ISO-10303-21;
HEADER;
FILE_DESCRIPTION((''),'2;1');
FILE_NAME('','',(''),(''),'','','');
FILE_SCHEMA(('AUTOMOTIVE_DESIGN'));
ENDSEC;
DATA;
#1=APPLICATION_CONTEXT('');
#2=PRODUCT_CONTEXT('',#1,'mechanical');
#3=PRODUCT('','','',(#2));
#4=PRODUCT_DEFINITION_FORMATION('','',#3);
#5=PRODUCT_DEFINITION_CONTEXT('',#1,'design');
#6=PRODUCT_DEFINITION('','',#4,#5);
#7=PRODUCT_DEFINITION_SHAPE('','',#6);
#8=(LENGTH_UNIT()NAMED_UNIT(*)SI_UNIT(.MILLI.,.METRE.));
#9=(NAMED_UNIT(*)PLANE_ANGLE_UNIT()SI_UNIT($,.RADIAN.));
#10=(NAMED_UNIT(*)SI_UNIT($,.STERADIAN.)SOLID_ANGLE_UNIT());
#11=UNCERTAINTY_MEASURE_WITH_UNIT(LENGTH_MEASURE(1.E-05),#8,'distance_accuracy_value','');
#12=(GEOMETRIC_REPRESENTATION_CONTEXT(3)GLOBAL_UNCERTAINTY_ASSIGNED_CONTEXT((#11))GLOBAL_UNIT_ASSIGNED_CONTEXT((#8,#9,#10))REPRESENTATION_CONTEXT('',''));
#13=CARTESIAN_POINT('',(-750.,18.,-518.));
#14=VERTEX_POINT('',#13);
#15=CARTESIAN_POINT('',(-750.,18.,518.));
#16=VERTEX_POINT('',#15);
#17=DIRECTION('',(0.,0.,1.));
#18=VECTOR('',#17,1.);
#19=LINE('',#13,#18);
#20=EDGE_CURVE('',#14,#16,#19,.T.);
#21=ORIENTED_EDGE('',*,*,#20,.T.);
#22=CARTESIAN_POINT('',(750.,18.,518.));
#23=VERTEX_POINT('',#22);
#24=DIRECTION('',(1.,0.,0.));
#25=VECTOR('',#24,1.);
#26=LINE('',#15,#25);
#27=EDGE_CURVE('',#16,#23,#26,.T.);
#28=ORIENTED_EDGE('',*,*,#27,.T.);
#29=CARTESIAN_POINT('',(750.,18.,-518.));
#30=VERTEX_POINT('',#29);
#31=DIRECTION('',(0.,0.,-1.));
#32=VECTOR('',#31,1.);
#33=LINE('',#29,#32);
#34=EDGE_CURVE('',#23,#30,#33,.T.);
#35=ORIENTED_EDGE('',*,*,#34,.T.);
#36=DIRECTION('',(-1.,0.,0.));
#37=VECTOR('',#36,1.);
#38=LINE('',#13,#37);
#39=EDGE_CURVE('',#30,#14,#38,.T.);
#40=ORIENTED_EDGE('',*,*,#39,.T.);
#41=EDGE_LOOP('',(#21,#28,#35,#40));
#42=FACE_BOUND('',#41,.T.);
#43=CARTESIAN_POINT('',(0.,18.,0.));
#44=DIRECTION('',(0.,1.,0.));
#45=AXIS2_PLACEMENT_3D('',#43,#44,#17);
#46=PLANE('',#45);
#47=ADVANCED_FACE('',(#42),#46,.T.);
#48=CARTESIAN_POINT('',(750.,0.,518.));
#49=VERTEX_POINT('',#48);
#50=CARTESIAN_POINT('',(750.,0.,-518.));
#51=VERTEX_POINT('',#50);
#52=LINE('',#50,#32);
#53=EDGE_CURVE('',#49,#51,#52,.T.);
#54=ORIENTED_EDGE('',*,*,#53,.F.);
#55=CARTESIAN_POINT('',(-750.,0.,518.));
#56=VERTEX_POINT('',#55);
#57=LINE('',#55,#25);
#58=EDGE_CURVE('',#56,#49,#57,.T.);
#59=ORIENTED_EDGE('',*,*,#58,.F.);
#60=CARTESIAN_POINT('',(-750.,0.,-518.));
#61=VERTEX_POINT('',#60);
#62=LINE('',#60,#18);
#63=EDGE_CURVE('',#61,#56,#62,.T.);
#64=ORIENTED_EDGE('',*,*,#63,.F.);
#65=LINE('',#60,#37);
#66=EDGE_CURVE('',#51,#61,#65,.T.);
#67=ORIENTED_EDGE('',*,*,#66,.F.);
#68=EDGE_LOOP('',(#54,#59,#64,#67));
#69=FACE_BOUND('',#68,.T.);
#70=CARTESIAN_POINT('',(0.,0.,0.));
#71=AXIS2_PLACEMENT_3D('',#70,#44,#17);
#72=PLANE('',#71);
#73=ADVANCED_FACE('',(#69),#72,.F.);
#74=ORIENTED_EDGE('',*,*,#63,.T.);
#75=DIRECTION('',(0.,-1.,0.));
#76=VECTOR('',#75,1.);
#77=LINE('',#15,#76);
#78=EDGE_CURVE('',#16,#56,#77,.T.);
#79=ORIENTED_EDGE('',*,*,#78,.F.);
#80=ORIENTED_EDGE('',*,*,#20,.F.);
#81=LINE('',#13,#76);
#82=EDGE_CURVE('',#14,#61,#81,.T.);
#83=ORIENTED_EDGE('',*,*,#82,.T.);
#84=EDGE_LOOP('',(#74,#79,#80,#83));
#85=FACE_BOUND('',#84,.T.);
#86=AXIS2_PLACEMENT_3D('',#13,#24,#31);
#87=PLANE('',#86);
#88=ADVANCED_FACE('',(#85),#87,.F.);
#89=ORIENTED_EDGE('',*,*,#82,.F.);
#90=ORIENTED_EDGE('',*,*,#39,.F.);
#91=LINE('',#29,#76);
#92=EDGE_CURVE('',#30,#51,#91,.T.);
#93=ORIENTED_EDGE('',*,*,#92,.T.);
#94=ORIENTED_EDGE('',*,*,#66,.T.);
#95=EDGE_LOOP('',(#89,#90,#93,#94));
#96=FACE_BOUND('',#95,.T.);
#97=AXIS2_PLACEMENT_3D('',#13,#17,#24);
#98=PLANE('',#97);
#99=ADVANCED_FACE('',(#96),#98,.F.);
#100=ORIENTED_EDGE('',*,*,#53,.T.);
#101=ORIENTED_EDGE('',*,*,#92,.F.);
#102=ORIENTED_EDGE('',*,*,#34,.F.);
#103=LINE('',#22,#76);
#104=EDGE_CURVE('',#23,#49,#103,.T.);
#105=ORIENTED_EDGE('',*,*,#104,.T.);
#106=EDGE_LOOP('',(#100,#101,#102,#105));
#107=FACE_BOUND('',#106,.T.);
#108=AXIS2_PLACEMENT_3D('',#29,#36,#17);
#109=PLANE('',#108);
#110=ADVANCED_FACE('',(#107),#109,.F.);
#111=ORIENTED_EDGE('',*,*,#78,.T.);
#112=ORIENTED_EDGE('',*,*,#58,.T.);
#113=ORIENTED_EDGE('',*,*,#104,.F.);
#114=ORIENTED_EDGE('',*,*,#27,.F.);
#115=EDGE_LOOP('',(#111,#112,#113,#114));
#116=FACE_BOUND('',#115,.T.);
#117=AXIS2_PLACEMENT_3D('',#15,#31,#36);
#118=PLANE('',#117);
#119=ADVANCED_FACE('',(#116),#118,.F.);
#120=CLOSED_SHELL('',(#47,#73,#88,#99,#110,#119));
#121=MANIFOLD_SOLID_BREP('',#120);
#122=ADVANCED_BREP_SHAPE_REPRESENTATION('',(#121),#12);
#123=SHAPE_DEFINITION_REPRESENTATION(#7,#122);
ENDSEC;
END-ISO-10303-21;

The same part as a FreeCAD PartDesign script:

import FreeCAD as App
import Part
import Sketcher
from FreeCAD import Vector
Q = App.Units.Quantity

doc = App.newDocument("Part")
body = doc.addObject("PartDesign::Body", "Body")

sketch1 = body.newObject("Sketcher::SketchObject", "Sketch")
sketch1.AttachmentSupport = (doc.getObject("XZ_Plane"), [""])
sketch1.MapMode = "FlatFace"
sketch1.addGeometry([
    Part.LineSegment(Vector(-750, -518, 0), Vector(-750, 518, 0)),
    Part.LineSegment(Vector(-750, 518, 0), Vector(750, 518, 0)),
    Part.LineSegment(Vector(750, 518, 0), Vector(750, -518, 0)),
    Part.LineSegment(Vector(750, -518, 0), Vector(-750, -518, 0)),
], False)
sketch1.addConstraint([
    Sketcher.Constraint("Coincident", 0, 2, 1, 1),
    Sketcher.Constraint("Coincident", 1, 2, 2, 1),
    Sketcher.Constraint("Coincident", 2, 2, 3, 1),
    Sketcher.Constraint("Coincident", 3, 2, 0, 1),
    Sketcher.Constraint("Vertical", 0),
    Sketcher.Constraint("Horizontal", 1),
    Sketcher.Constraint("Vertical", 2),
    Sketcher.Constraint("Horizontal", 3),
    Sketcher.Constraint("Symmetric", 0, 2, 2, 2, -1, 1),
    Sketcher.Constraint("DistanceX", 1, 1, 1, 2, Q("1500 mm")),
    Sketcher.Constraint("DistanceY", 0, 1, 0, 2, Q("1036 mm")),
])
pad1 = body.newObject("PartDesign::Pad", "Pad")
pad1.Profile = sketch1
pad1.Length = 18
pad1.Reversed = True

doc.recompute()
